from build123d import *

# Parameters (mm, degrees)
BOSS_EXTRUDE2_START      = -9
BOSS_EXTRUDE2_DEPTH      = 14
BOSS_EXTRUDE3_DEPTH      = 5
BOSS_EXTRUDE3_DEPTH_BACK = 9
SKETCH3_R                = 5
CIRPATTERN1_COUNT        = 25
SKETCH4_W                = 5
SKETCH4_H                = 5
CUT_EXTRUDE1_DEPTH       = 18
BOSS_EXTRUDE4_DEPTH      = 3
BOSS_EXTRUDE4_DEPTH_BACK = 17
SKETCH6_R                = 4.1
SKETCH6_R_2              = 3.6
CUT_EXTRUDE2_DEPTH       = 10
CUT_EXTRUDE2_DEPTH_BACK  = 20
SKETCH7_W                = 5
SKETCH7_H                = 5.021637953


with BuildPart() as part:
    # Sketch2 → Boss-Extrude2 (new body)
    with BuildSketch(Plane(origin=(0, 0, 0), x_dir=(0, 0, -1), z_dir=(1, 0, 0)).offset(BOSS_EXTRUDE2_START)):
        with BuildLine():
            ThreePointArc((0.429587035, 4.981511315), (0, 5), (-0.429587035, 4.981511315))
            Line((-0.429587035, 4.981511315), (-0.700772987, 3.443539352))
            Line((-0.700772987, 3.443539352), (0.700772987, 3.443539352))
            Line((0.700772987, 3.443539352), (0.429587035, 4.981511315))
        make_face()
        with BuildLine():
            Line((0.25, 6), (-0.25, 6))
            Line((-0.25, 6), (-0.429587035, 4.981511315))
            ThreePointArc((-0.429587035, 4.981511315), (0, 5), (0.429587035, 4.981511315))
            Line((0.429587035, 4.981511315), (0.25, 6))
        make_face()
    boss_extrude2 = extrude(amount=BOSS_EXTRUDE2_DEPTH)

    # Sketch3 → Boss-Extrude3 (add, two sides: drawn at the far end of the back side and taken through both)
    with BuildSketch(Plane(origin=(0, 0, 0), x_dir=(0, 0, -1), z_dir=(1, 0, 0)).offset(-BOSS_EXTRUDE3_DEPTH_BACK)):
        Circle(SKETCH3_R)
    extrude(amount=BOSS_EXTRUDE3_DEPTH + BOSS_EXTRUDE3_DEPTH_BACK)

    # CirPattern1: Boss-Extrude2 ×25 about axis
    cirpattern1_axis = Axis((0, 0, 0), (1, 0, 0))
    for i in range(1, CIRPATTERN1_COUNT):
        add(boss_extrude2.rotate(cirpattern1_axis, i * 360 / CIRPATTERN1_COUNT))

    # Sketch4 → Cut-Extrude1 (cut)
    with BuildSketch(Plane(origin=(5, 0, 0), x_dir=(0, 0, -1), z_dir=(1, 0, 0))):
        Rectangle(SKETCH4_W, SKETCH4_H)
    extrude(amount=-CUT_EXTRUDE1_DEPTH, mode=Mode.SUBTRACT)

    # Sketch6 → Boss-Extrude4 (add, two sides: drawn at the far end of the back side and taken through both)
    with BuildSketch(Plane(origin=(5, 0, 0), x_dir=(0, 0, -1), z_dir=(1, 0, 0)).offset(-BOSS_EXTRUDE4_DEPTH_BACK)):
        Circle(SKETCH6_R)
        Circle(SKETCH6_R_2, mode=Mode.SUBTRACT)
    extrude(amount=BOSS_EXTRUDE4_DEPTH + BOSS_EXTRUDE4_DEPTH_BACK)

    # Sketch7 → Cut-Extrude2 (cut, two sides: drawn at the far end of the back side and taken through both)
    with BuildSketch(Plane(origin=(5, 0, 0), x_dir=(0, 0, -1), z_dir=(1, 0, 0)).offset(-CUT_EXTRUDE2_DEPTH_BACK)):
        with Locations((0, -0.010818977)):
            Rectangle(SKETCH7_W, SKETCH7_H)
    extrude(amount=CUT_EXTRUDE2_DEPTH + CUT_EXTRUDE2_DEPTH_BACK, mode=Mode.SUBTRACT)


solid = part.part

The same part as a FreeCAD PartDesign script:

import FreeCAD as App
import Part
import Sketcher
from FreeCAD import Vector
Q = App.Units.Quantity


def add_polygon(sketch, points):
    """Adds a closed chain of lines whose ends are joined by coincident constraints."""
    first, n = sketch.GeometryCount, len(points)
    for a, b in zip(points, points[1:] + points[:1]):
        sketch.addGeometry(Part.LineSegment(App.Vector(*a, 0), App.Vector(*b, 0)), False)
    for i in range(n):
        sketch.addConstraint(Sketcher.Constraint("Coincident", first + i, 2, first + (i + 1) % n, 1))

doc = App.newDocument("Part")
body = doc.addObject("PartDesign::Body", "Body")

# Sketch on YZ plane
sketch1 = body.newObject("Sketcher::SketchObject", "Sketch")
sketch1.AttachmentSupport = (doc.getObject("YZ_Plane"), [""])
sketch1.MapMode = "FlatFace"
sketch1.AttachmentOffset = App.Placement(Vector(0, 0, -9), App.Rotation())
add_polygon(sketch1, [(4.981511, 0.429587), (3.443539, 0.700773), (3.443539, -0.700773), (4.981511, -0.429587), (6, -0.25), (6, 0.25)])  # lines 0-5
sketch1.addConstraint(Sketcher.Constraint("Vertical", 1))
sketch1.addConstraint(Sketcher.Constraint("Vertical", 4))
sketch1.addConstraint(Sketcher.Constraint("Symmetric", 2, 2, 5, 2, -1))
sketch1.addConstraint(Sketcher.Constraint("Parallel", 2, 3))
sketch1.addConstraint(Sketcher.Constraint("Parallel", 0, 5))
sketch1.addConstraint(Sketcher.Constraint("Equal", 0, 2))
sketch1.addConstraint(Sketcher.Constraint("Angle", 0, Q("170 deg")))
sketch1.addConstraint(Sketcher.Constraint("DistanceY", 4, 1, 4, 2, 0.5))
sketch1.addConstraint(Sketcher.Constraint("DistanceX", -1, 1, 3, 2, 6.0))
sketch1.addConstraint(Sketcher.Constraint("Distance", 3, 1.034201))
sketch1.addConstraint(Sketcher.Constraint("DistanceY", 1, 2, 1, 1, 1.401546))
pad1 = body.newObject("PartDesign::Pad", "Pad")
pad1.Profile = sketch1
pad1.Length = 14

# Sketch on YZ plane
sketch2 = body.newObject("Sketcher::SketchObject", "Sketch001")
sketch2.AttachmentSupport = (doc.getObject("YZ_Plane"), [""])
sketch2.MapMode = "FlatFace"
sketch2.addGeometry(Part.Circle(Vector(0, 0, 0), Vector(0, 0, 1), 5), False)
sketch2.addConstraint(Sketcher.Constraint("Coincident", 0, 3, -1, 1))
sketch2.addConstraint(Sketcher.Constraint("Diameter", 0, 10.0))
pad2 = body.newObject("PartDesign::Pad", "Pad001")
pad2.Profile = sketch2
pad2.Type = "TwoLengths"
pad2.Length = 5
pad2.Length2 = 9
doc.recompute()

polarpattern = body.newObject("PartDesign::PolarPattern", "PolarPattern")
polarpattern.Originals = [pad1]
polarpattern.Axis = (doc.getObject("X_Axis"), [""])
polarpattern.Angle = 360
polarpattern.Occurrences = 25
body.Tip = polarpattern

# Sketch on YZ plane
sketch3 = body.newObject("Sketcher::SketchObject", "Sketch002")
sketch3.AttachmentSupport = (doc.getObject("YZ_Plane"), [""])
sketch3.MapMode = "FlatFace"
sketch3.AttachmentOffset = App.Placement(Vector(0, 0, 5), App.Rotation())
add_polygon(sketch3, [(2.5, 2.5), (-2.5, 2.5), (-2.5, -2.5), (2.5, -2.5)])  # lines 0-3
sketch3.addConstraint(Sketcher.Constraint("Horizontal", 0))
sketch3.addConstraint(Sketcher.Constraint("Vertical", 1))
sketch3.addConstraint(Sketcher.Constraint("Horizontal", 2))
sketch3.addConstraint(Sketcher.Constraint("Vertical", 3))
sketch3.addConstraint(Sketcher.Constraint("Symmetric", 0, 2, 2, 2, -1, 1))
sketch3.addConstraint(Sketcher.Constraint("Equal", 2, 1))
sketch3.addConstraint(Sketcher.Constraint("DistanceX", 0, 2, 0, 1, 5.0))
pocket1 = body.newObject("PartDesign::Pocket", "Pocket")
pocket1.Profile = sketch3
pocket1.Length = 18

# Sketch on YZ plane
sketch4 = body.newObject("Sketcher::SketchObject", "Sketch003")
sketch4.AttachmentSupport = (doc.getObject("YZ_Plane"), [""])
sketch4.MapMode = "FlatFace"
sketch4.AttachmentOffset = App.Placement(Vector(0, 0, 5), App.Rotation())
sketch4.addGeometry(Part.Circle(Vector(0, 0, 0), Vector(0, 0, 1), 4.1), False)
sketch4.addGeometry(Part.Circle(Vector(0, 0, 0), Vector(0, 0, 1), 3.6), False)
sketch4.addConstraint(Sketcher.Constraint("Coincident", 0, 3, -1, 1))
sketch4.addConstraint(Sketcher.Constraint("Coincident", 1, 3, -1, 1))
sketch4.addConstraint(Sketcher.Constraint("Diameter", 0, 8.2))
sketch4.addConstraint(Sketcher.Constraint("Diameter", 1, 7.2))
pad3 = body.newObject("PartDesign::Pad", "Pad002")
pad3.Profile = sketch4
pad3.Type = "TwoLengths"
pad3.Length = 3
pad3.Length2 = 17

# Sketch on YZ plane
sketch5 = body.newObject("Sketcher::SketchObject", "Sketch004")
sketch5.AttachmentSupport = (doc.getObject("YZ_Plane"), [""])
sketch5.MapMode = "FlatFace"
sketch5.AttachmentOffset = App.Placement(Vector(0, 0, 5), App.Rotation())
add_polygon(sketch5, [(2.5, 2.5), (-2.521638, 2.5), (-2.521638, -2.5), (2.5, -2.5)])  # lines 0-3
sketch5.addConstraint(Sketcher.Constraint("Horizontal", 0))
sketch5.addConstraint(Sketcher.Constraint("Vertical", 1))
sketch5.addConstraint(Sketcher.Constraint("Horizontal", 2))
sketch5.addConstraint(Sketcher.Constraint("Vertical", 3))
sketch5.addConstraint(Sketcher.Constraint("DistanceY", 1, 2, 1, 1, 5.0))
sketch5.addConstraint(Sketcher.Constraint("DistanceY", -1, 1, 0, 2, 2.5))
sketch5.addConstraint(Sketcher.Constraint("DistanceX", -1, 1, 2, 2, 2.5))
sketch5.addConstraint(Sketcher.Constraint("DistanceX", 0, 2, 0, 1, 5.021638))
pocket2 = body.newObject("PartDesign::Pocket", "Pocket001")
pocket2.Profile = sketch5
pocket2.Type = "ThroughAll"
pocket2.Midplane = True

doc.recompute()
